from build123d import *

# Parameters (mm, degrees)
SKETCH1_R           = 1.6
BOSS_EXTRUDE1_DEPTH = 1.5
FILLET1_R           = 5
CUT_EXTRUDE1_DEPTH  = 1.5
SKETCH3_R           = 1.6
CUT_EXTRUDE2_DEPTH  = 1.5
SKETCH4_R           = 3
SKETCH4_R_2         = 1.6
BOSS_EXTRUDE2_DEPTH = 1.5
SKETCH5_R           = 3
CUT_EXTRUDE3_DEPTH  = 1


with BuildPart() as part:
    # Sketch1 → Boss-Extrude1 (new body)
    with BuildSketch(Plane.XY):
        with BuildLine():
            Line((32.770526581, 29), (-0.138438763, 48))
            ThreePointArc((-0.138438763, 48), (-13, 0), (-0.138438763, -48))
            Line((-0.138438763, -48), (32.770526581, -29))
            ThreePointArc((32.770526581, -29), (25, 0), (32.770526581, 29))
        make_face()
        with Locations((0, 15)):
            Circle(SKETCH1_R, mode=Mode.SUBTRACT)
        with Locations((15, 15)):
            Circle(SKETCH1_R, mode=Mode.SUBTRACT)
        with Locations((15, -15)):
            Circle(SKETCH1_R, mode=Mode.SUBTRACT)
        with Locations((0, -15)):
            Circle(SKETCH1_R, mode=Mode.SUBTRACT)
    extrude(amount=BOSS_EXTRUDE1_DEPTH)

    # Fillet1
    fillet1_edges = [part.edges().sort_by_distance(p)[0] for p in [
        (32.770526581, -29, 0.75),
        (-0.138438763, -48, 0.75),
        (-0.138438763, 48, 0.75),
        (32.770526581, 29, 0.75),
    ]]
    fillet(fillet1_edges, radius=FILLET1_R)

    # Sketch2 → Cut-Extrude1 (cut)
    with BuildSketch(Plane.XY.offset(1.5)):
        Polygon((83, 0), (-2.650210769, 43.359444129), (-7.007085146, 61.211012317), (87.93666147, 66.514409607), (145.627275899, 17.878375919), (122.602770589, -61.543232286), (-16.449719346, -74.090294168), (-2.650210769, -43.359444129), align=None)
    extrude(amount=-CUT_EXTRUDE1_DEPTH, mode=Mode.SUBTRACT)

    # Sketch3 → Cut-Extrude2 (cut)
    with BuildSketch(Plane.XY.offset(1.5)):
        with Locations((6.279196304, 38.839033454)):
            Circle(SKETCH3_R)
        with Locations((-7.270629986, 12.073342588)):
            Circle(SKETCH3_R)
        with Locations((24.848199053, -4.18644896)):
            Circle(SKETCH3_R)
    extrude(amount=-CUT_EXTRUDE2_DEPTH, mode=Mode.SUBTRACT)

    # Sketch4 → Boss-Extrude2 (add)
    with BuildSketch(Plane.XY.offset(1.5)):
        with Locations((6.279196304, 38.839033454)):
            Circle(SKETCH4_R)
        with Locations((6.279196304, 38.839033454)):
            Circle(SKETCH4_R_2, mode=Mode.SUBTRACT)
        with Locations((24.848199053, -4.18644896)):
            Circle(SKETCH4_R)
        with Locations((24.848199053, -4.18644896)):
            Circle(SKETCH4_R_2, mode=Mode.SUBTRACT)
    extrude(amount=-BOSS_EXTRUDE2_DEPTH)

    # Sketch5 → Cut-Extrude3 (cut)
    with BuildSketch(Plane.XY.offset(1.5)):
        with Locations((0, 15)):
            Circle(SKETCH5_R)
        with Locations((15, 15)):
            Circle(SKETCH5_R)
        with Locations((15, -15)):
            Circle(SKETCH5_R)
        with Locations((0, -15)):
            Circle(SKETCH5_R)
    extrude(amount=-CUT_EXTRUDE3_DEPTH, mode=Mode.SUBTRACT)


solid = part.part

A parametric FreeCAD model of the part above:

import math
import FreeCAD as App
import Part
import Sketcher
from FreeCAD import Vector
Q = App.Units.Quantity


def edges_at(feature, points):
    """Names of the edges that pass closest to the given points."""
    edges = feature.Shape.Edges
    near = lambda p: min(range(len(edges)), key=lambda i: edges[i].distToShape(Part.Vertex(*p))[0])
    return sorted({f"Edge{near(p) + 1}" for p in points})

doc = App.newDocument("Part")
params = doc.addObject("Spreadsheet::Sheet", "Params")
for row, (alias, value) in enumerate([
    ("sketch1_radius", "96 mm"),
    ("sketch1_radius2", "58 mm"),
    ("sketch1_diameter", "3.2 mm"),
    ("pad1_length", "1.5 mm"),
    ("fillet_radius", "5 mm"),
    ("sketch2_length", "96 mm"),
    ("pocket1_length", "1.5 mm"),
    ("sketch3_diameter", "3.2 mm"),
    ("pocket2_length", "1.5 mm"),
    ("sketch4_diameter", "6 mm"),
    ("sketch4_diameter2", "3.2 mm"),
    ("pad2_length", "1.5 mm"),
    ("sketch5_diameter", "6 mm"),
    ("pocket3_length", "1 mm"),
], start=1):
    params.set(f"A{row}", alias)
    params.set(f"B{row}", "=" + value)
    params.setAlias(f"B{row}", alias)

body = doc.addObject("PartDesign::Body", "Body")

# Sketch on XY plane
sketch1 = doc.addObject("Sketcher::SketchObject", "Sketch")
body.addObject(sketch1)
sketch1.AttachmentSupport = (doc.XY_Plane, [""])
sketch1.MapMode = "FlatFace"
sketch1.addGeometry([
    Part.LineSegment(Vector(32.8, 29, 0), Vector(-0.1, 48, 0)),  # 0
    Part.ArcOfCircle(Part.Circle(Vector(83, 0, 0), Vector(0, 0, 1), 96), math.radians(150), math.radians(210)),  # 1
    Part.LineSegment(Vector(-0.1, -48, 0), Vector(32.8, -29, 0)),  # 2
    Part.ArcOfCircle(Part.Circle(Vector(83, 0, 0), Vector(0, 0, 1), 58), math.radians(150), math.radians(210)),  # 3
    Part.Circle(Vector(0, -15, 0), Vector(0, 0, 1), 1.6),  # 4
    Part.Circle(Vector(15, -15, 0), Vector(0, 0, 1), 1.6),  # 5
    Part.Circle(Vector(0, 15, 0), Vector(0, 0, 1), 1.6),  # 6
    Part.Circle(Vector(15, 15, 0), Vector(0, 0, 1), 1.6),  # 7
], False)
sketch1.addConstraint([
    Sketcher.Constraint("Coincident", 0, 2, 1, 1),
    Sketcher.Constraint("Coincident", 1, 2, 2, 1),
    Sketcher.Constraint("Coincident", 2, 2, 3, 2),
    Sketcher.Constraint("Coincident", 3, 1, 0, 1),
    Sketcher.Constraint("Coincident", 3, 3, 1, 3),
    Sketcher.Constraint("Equal", 4, 5),
    Sketcher.Constraint("Equal", 5, 6),
    Sketcher.Constraint("Equal", 6, 7),
    Sketcher.Constraint("Symmetric", 4, 3, 6, 3, -1, 1),
    Sketcher.Constraint("Symmetric", 5, 3, 7, 3, -1),
    Sketcher.Constraint("Symmetric", 0, 2, 1, 2, -1),
    Sketcher.Constraint("PointOnObject", 4, 3, -2),
    Sketcher.Constraint("Horizontal", 4, 3, 5, 3),
    Sketcher.Constraint("Vertical", 2, 2, 3, 1),
    Sketcher.Constraint("Radius", 1, 96.0),
    Sketcher.Constraint("Radius", 3, 58.0),
    Sketcher.Constraint("Diameter", 4, 3.2),
    Sketcher.Constraint("Angle", 0, Q("150 deg")),
    Sketcher.Constraint("DistanceX", -1, 1, 1, 3, 83.0),
    Sketcher.Constraint("DistanceY", 4, 3, -1, 1, 15.0),
    Sketcher.Constraint("DistanceX", -1, 1, 5, 3, 15.0),
    Sketcher.Constraint("DistanceY", -1, 1, 0, 2, 48.0),
])
sketch1.setExpression("Constraints[14]", "Params.sketch1_radius")
sketch1.setExpression("Constraints[15]", "Params.sketch1_radius2")
sketch1.setExpression("Constraints[16]", "Params.sketch1_diameter")
pad1 = doc.addObject("PartDesign::Pad", "Pad")
body.addObject(pad1)
pad1.Profile = sketch1
pad1.setExpression("Length", "Params.pad1_length")
doc.recompute()

fillet = doc.addObject("PartDesign::Fillet", "Fillet")
body.addObject(fillet)
fillet.Base = (pad1, edges_at(pad1, [
    (32.771, -29, 0.75),
    (-0.138, -48, 0.75),
    (-0.138, 48, 0.75),
    (32.771, 29, 0.75),
]))
fillet.setExpression("Radius", "Params.fillet_radius")

# Sketch on XY plane
sketch2 = doc.addObject("Sketcher::SketchObject", "Sketch001")
body.addObject(sketch2)
sketch2.AttachmentSupport = (doc.XY_Plane, [""])
sketch2.MapMode = "FlatFace"
sketch2.AttachmentOffset = App.Placement(Vector(0, 0, 1.5), App.Rotation())
sketch2.addGeometry([
    Part.LineSegment(Vector(-3, 43, 0), Vector(83, 0, 0)),  # 0
    Part.LineSegment(Vector(83, 0, 0), Vector(-3, -43, 0)),  # 1
    Part.LineSegment(Vector(-3, -43, 0), Vector(-16, -74, 0)),  # 2
    Part.LineSegment(Vector(-16, -74, 0), Vector(123, -62, 0)),  # 3
    Part.LineSegment(Vector(123, -62, 0), Vector(146, 18, 0)),  # 4
    Part.LineSegment(Vector(146, 18, 0), Vector(88, 67, 0)),  # 5
    Part.LineSegment(Vector(88, 67, 0), Vector(-7, 61, 0)),  # 6
    Part.LineSegment(Vector(-7, 61, 0), Vector(-3, 43, 0)),  # 7
], False)
sketch2.addConstraint([
    Sketcher.Constraint("Coincident", 0, 2, 1, 1),
    Sketcher.Constraint("Coincident", 1, 2, 2, 1),
    Sketcher.Constraint("Coincident", 2, 2, 3, 1),
    Sketcher.Constraint("Coincident", 3, 2, 4, 1),
    Sketcher.Constraint("Coincident", 4, 2, 5, 1),
    Sketcher.Constraint("Coincident", 5, 2, 6, 1),
    Sketcher.Constraint("Coincident", 6, 2, 7, 1),
    Sketcher.Constraint("Coincident", 7, 2, 0, 1),
    Sketcher.Constraint("Symmetric", 1, 2, 7, 2, -1),
    Sketcher.Constraint("PointOnObject", 0, 2, -1),
    Sketcher.Constraint("Distance", 0, 96.0),
    Sketcher.Constraint("DistanceX", -1, 1, 0, 2, 83.0),
    Sketcher.Constraint("Distance", 3, 139.617419),
    Sketcher.Constraint("Distance", 6, 95.091751),
    Sketcher.Constraint("Distance", 7, 18.37555),
    Sketcher.Constraint("DistanceX", 1, 2, -1, 1, 2.650211),
    Sketcher.Constraint("DistanceX", 2, 2, -1, 1, 16.449719),
    Sketcher.Constraint("DistanceX", -1, 1, 3, 2, 122.602771),
    Sketcher.Constraint("DistanceX", -1, 1, 5, 2, 87.936661),
    Sketcher.Constraint("DistanceY", -1, 1, 5, 2, 66.51441),
    Sketcher.Constraint("DistanceY", 2, 2, 1, 2, 30.73085),
    Sketcher.Constraint("DistanceY", 3, 2, 4, 2, 79.421608),
    Sketcher.Constraint("DistanceX", 6, 2, 4, 2, 152.634361),
])
sketch2.setExpression("Constraints[10]", "Params.sketch2_length")
pocket1 = doc.addObject("PartDesign::Pocket", "Pocket")
body.addObject(pocket1)
pocket1.Profile = sketch2
pocket1.setExpression("Length", "Params.pocket1_length")

# Sketch on XY plane
sketch3 = doc.addObject("Sketcher::SketchObject", "Sketch002")
body.addObject(sketch3)
sketch3.AttachmentSupport = (doc.XY_Plane, [""])
sketch3.MapMode = "FlatFace"
sketch3.AttachmentOffset = App.Placement(Vector(0, 0, 1.5), App.Rotation())
sketch3.addGeometry([
    Part.Circle(Vector(6.3, 38.8, 0), Vector(0, 0, 1), 1.6),
    Part.Circle(Vector(-7.3, 12.1, 0), Vector(0, 0, 1), 1.6),
    Part.Circle(Vector(24.8, -4.2, 0), Vector(0, 0, 1), 1.6),
], False)
sketch3.addConstraint([
    Sketcher.Constraint("Equal", 0, 1),
    Sketcher.Constraint("Equal", 1, 2),
    Sketcher.Constraint("Diameter", 0, 3.2),
    Sketcher.Constraint("DistanceX", -1, 1, 2, 3, 24.848199),
    Sketcher.Constraint("DistanceX", 1, 3, -1, 1, 7.27063),
    Sketcher.Constraint("DistanceY", 2, 3, -1, 1, 4.186449),
    Sketcher.Constraint("DistanceY", 1, 3, 0, 3, 26.765691),
    Sketcher.Constraint("DistanceY", 2, 3, 1, 3, 16.259792),
    Sketcher.Constraint("DistanceX", -1, 1, 0, 3, 6.279196),
])
sketch3.setExpression("Constraints[2]", "Params.sketch3_diameter")
pocket2 = doc.addObject("PartDesign::Pocket", "Pocket001")
body.addObject(pocket2)
pocket2.Profile = sketch3
pocket2.setExpression("Length", "Params.pocket2_length")

# Sketch on XY plane
sketch4 = doc.addObject("Sketcher::SketchObject", "Sketch003")
body.addObject(sketch4)
sketch4.AttachmentSupport = (doc.XY_Plane, [""])
sketch4.MapMode = "FlatFace"
sketch4.AttachmentOffset = App.Placement(Vector(0, 0, 1.5), App.Rotation())
sketch4.addGeometry([
    Part.Circle(Vector(6.3, 38.8, 0), Vector(0, 0, 1), 3),
    Part.Circle(Vector(6.3, 38.8, 0), Vector(0, 0, 1), 1.6),
    Part.Circle(Vector(24.8, -4.2, 0), Vector(0, 0, 1), 3),
    Part.Circle(Vector(24.8, -4.2, 0), Vector(0, 0, 1), 1.6),
], False)
sketch4.addConstraint([
    Sketcher.Constraint("Coincident", 1, 3, 0, 3),
    Sketcher.Constraint("Coincident", 3, 3, 2, 3),
    Sketcher.Constraint("Equal", 0, 2),
    Sketcher.Constraint("Equal", 1, 3),
    Sketcher.Constraint("Diameter", 0, 6.0),
    Sketcher.Constraint("Diameter", 1, 3.2),
    Sketcher.Constraint("DistanceX", -1, 1, 2, 3, 24.848199),
    Sketcher.Constraint("DistanceY", 2, 3, -1, 1, 4.186449),
    Sketcher.Constraint("DistanceX", -1, 1, 0, 3, 6.279196),
    Sketcher.Constraint("DistanceY", -1, 1, 0, 3, 38.839033),
])
sketch4.setExpression("Constraints[4]", "Params.sketch4_diameter")
sketch4.setExpression("Constraints[5]", "Params.sketch4_diameter2")
pad2 = doc.addObject("PartDesign::Pad", "Pad001")
body.addObject(pad2)
pad2.Profile = sketch4
pad2.setExpression("Length", "Params.pad2_length")
pad2.Reversed = True

# Sketch on XY plane
sketch5 = doc.addObject("Sketcher::SketchObject", "Sketch004")
body.addObject(sketch5)
sketch5.AttachmentSupport = (doc.XY_Plane, [""])
sketch5.MapMode = "FlatFace"
sketch5.AttachmentOffset = App.Placement(Vector(0, 0, 1.5), App.Rotation())
sketch5.addGeometry([
    Part.Circle(Vector(0, 15, 0), Vector(0, 0, 1), 3),
    Part.Circle(Vector(15, 15, 0), Vector(0, 0, 1), 3),
    Part.Circle(Vector(15, -15, 0), Vector(0, 0, 1), 3),
    Part.Circle(Vector(0, -15, 0), Vector(0, 0, 1), 3),
], False)
sketch5.addConstraint([
    Sketcher.Constraint("Equal", 0, 1),
    Sketcher.Constraint("Equal", 1, 2),
    Sketcher.Constraint("Equal", 2, 3),
    Sketcher.Constraint("Symmetric", 0, 3, 3, 3, -1, 1),
    Sketcher.Constraint("Symmetric", 1, 3, 2, 3, -1),
    Sketcher.Constraint("PointOnObject", 0, 3, -2),
    Sketcher.Constraint("Horizontal", 0, 3, 1, 3),
    Sketcher.Constraint("Diameter", 0, 6.0),
    Sketcher.Constraint("DistanceY", -1, 1, 0, 3, 15.0),
    Sketcher.Constraint("DistanceX", -1, 1, 1, 3, 15.0),
])
sketch5.setExpression("Constraints[7]", "Params.sketch5_diameter")
pocket3 = doc.addObject("PartDesign::Pocket", "Pocket002")
body.addObject(pocket3)
pocket3.Profile = sketch5
pocket3.setExpression("Length", "Params.pocket3_length")

doc.recompute()
